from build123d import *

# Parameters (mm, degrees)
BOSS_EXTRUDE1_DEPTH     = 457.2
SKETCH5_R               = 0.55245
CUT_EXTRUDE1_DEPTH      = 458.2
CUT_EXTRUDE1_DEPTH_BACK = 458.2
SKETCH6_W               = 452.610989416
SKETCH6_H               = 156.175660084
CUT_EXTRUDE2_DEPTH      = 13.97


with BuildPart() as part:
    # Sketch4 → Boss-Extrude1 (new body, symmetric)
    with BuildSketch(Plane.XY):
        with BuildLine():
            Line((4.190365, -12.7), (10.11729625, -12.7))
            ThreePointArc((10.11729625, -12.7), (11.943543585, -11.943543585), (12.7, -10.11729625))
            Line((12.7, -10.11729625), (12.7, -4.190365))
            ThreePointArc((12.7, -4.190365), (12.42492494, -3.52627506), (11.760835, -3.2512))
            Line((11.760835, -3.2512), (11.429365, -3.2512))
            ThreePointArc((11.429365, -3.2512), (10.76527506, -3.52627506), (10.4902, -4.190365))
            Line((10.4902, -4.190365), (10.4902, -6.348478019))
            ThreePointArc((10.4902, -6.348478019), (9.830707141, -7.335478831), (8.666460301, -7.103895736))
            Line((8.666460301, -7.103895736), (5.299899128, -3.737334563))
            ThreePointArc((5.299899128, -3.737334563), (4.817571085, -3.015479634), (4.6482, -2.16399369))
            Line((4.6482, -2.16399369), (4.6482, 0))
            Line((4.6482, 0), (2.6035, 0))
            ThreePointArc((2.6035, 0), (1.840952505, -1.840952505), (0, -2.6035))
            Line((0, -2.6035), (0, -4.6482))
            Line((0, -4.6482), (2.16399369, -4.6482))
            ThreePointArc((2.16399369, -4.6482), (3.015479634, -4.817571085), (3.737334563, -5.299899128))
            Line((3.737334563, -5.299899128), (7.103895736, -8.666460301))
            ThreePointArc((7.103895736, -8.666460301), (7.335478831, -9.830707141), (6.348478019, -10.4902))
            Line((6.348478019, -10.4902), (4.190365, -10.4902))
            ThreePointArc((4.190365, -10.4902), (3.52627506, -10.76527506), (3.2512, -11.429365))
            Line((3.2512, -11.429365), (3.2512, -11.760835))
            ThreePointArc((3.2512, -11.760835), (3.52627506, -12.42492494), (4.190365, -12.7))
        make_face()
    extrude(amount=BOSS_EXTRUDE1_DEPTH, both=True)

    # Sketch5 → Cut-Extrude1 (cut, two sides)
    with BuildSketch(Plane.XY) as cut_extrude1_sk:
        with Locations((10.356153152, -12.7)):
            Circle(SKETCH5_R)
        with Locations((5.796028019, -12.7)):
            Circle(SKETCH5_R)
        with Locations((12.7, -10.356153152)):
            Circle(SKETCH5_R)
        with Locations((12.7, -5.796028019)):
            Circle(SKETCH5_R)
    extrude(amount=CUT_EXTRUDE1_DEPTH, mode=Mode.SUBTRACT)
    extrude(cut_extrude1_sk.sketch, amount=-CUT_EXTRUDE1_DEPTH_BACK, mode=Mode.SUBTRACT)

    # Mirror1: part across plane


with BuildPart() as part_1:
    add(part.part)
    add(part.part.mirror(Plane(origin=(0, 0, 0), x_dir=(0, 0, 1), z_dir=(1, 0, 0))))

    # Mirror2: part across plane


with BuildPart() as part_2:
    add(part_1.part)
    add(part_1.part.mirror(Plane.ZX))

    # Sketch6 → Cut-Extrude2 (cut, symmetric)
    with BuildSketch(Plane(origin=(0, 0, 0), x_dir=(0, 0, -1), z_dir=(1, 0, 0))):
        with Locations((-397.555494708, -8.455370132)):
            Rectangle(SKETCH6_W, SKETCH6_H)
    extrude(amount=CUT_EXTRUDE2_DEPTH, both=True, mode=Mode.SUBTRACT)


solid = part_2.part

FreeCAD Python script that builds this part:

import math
import FreeCAD as App
import Part
import Sketcher

V = App.Vector
Q = App.Units.Quantity

doc = App.newDocument("Part")
body = doc.addObject("PartDesign::Body", "Body")

# Sketch on XY plane
sketch1 = body.newObject("Sketcher::SketchObject", "Sketch")
sketch1.AttachmentSupport = (doc.getObject("XY_Plane"), [""])
sketch1.MapMode = "FlatFace"
sketch1.addGeometry(Part.LineSegment(V(4.190365, -12.7, 0), V(10.117296, -12.7, 0)), False)
sketch1.addGeometry(Part.ArcOfCircle(Part.Circle(V(10.117296, -10.117296, 0), V(0, 0, 1), 2.582704), math.radians(-90), math.radians(0)), False)
sketch1.addGeometry(Part.LineSegment(V(12.7, -10.117296, 0), V(12.7, -4.190365, 0)), False)
sketch1.addGeometry(Part.ArcOfCircle(Part.Circle(V(11.760835, -4.190365, 0), V(0, 0, 1), 0.939165), math.radians(0), math.radians(90)), False)
sketch1.addGeometry(Part.LineSegment(V(11.760835, -3.2512, 0), V(11.429365, -3.2512, 0)), False)
sketch1.addGeometry(Part.ArcOfCircle(Part.Circle(V(11.429365, -4.190365, 0), V(0, 0, 1), 0.939165), math.radians(90), math.radians(180)), False)
sketch1.addGeometry(Part.LineSegment(V(10.4902, -4.190365, 0), V(10.4902, -6.348478, 0)), False)
sketch1.addGeometry(Part.ArcOfCircle(Part.Circle(V(9.421878, -6.348478, 0), V(0, 0, 1), 1.068322), math.radians(-135), math.radians(0)), False)
sketch1.addGeometry(Part.LineSegment(V(8.66646, -7.103896, 0), V(5.299899, -3.737335, 0)), False)
sketch1.addGeometry(Part.ArcOfCircle(Part.Circle(V(6.87324, -2.163994, 0), V(0, 0, 1), 2.22504), math.radians(-180), math.radians(-135)), False)
sketch1.addGeometry(Part.LineSegment(V(4.6482, -2.163994, 0), V(4.6482, 0, 0)), False)
sketch1.addGeometry(Part.LineSegment(V(4.6482, 0, 0), V(2.6035, 0, 0)), False)
sketch1.addGeometry(Part.ArcOfCircle(Part.Circle(V(0, 0, 0), V(0, 0, 1), 2.6035), math.radians(-90), math.radians(0)), False)
sketch1.addGeometry(Part.LineSegment(V(0, -2.6035, 0), V(0, -4.6482, 0)), False)
sketch1.addGeometry(Part.LineSegment(V(0, -4.6482, 0), V(2.163994, -4.6482, 0)), False)
sketch1.addGeometry(Part.ArcOfCircle(Part.Circle(V(2.163994, -6.87324, 0), V(0, 0, 1), 2.22504), math.radians(45), math.radians(90)), False)
sketch1.addGeometry(Part.LineSegment(V(3.737335, -5.299899, 0), V(7.103896, -8.66646, 0)), False)
sketch1.addGeometry(Part.ArcOfCircle(Part.Circle(V(6.348478, -9.421878, 0), V(0, 0, 1), 1.068322), math.radians(-90), math.radians(45)), False)
sketch1.addGeometry(Part.LineSegment(V(6.348478, -10.4902, 0), V(4.190365, -10.4902, 0)), False)
sketch1.addGeometry(Part.ArcOfCircle(Part.Circle(V(4.190365, -11.429365, 0), V(0, 0, 1), 0.939165), math.radians(90), math.radians(180)), False)
sketch1.addGeometry(Part.LineSegment(V(3.2512, -11.429365, 0), V(3.2512, -11.760835, 0)), False)
sketch1.addGeometry(Part.ArcOfCircle(Part.Circle(V(4.190365, -11.760835, 0), V(0, 0, 1), 0.939165), math.radians(-180), math.radians(-90)), False)
sketch1.addConstraint(Sketcher.Constraint("Tangent", 0, 2, 1, 1))
sketch1.addConstraint(Sketcher.Constraint("Tangent", 1, 2, 2, 1))
sketch1.addConstraint(Sketcher.Constraint("Tangent", 2, 2, 3, 1))
sketch1.addConstraint(Sketcher.Constraint("Tangent", 3, 2, 4, 1))
sketch1.addConstraint(Sketcher.Constraint("Tangent", 4, 2, 5, 1))
sketch1.addConstraint(Sketcher.Constraint("Tangent", 5, 2, 6, 1))
sketch1.addConstraint(Sketcher.Constraint("Tangent", 6, 2, 7, 2))
sketch1.addConstraint(Sketcher.Constraint("Tangent", 7, 1, 8, 1))
sketch1.addConstraint(Sketcher.Constraint("Tangent", 8, 2, 9, 2))
sketch1.addConstraint(Sketcher.Constraint("Tangent", 9, 1, 10, 1))
sketch1.addConstraint(Sketcher.Constraint("Coincident", 10, 2, 11, 1))
sketch1.addConstraint(Sketcher.Constraint("Coincident", 11, 2, 12, 2))
sketch1.addConstraint(Sketcher.Constraint("Coincident", 12, 1, 13, 1))
sketch1.addConstraint(Sketcher.Constraint("Coincident", 13, 2, 14, 1))
sketch1.addConstraint(Sketcher.Constraint("Tangent", 14, 2, 15, 2))
sketch1.addConstraint(Sketcher.Constraint("Tangent", 15, 1, 16, 1))
sketch1.addConstraint(Sketcher.Constraint("Tangent", 16, 2, 17, 2))
sketch1.addConstraint(Sketcher.Constraint("Tangent", 17, 1, 18, 1))
sketch1.addConstraint(Sketcher.Constraint("Tangent", 18, 2, 19, 1))
sketch1.addConstraint(Sketcher.Constraint("Tangent", 19, 2, 20, 1))
sketch1.addConstraint(Sketcher.Constraint("Tangent", 20, 2, 21, 1))
sketch1.addConstraint(Sketcher.Constraint("Tangent", 21, 2, 0, 1))
sketch1.addConstraint(Sketcher.Constraint("Horizontal", 0))
sketch1.addConstraint(Sketcher.Constraint("Vertical", 2))
sketch1.addConstraint(Sketcher.Constraint("Horizontal", 4))
sketch1.addConstraint(Sketcher.Constraint("Vertical", 6))
sketch1.addConstraint(Sketcher.Constraint("Vertical", 10))
sketch1.addConstraint(Sketcher.Constraint("Horizontal", 11))
sketch1.addConstraint(Sketcher.Constraint("Vertical", 13))
sketch1.addConstraint(Sketcher.Constraint("Horizontal", 14))
sketch1.addConstraint(Sketcher.Constraint("Horizontal", 18))
sketch1.addConstraint(Sketcher.Constraint("Vertical", 20))
sketch1.addConstraint(Sketcher.Constraint("Coincident", 12, 3, -1, 1))
sketch1.addConstraint(Sketcher.Constraint("Equal", 3, 5))
sketch1.addConstraint(Sketcher.Constraint("Equal", 9, 15))
sketch1.addConstraint(Sketcher.Constraint("Equal", 7, 17))
sketch1.addConstraint(Sketcher.Constraint("Equal", 5, 19))
sketch1.addConstraint(Sketcher.Constraint("Equal", 19, 21))
sketch1.addConstraint(Sketcher.Constraint("PointOnObject", 10, 2, -1))
sketch1.addConstraint(Sketcher.Constraint("PointOnObject", 12, 1, -2))
sketch1.addConstraint(Sketcher.Constraint("Parallel", 8, 16))
sketch1.addConstraint(Sketcher.Constraint("Equal", 0, 2))
sketch1.addConstraint(Sketcher.Constraint("Equal", 18, 6))
sketch1.addConstraint(Sketcher.Constraint("Equal", 14, 10))
sketch1.addConstraint(Sketcher.Constraint("Equal", 11, 13))
sketch1.addConstraint(Sketcher.Constraint("Equal", 4, 20))
sketch1.addConstraint(Sketcher.Constraint("Equal", 8, 16))
sketch1.addConstraint(Sketcher.Constraint("DistanceY", 0, 2, -1, 1, Q("0.5 in")))
sketch1.addConstraint(Sketcher.Constraint("Radius", 9, Q("0.0876 in")))
sketch1.addConstraint(Sketcher.Constraint("Radius", 12, Q("0.1025 in")))
sketch1.addConstraint(Sketcher.Constraint("DistanceX", 9, 1, 5, 2, Q("0.23 in")))
sketch1.addConstraint(Sketcher.Constraint("DistanceX", 11, 2, 11, 1, Q("0.0805 in")))
sketch1.addConstraint(Sketcher.Constraint("DistanceY", 3, 2, -1, 1, Q("0.128 in")))
sketch1.addConstraint(Sketcher.Constraint("Radius", 7, Q("1.068322 mm")))
sketch1.addConstraint(Sketcher.Constraint("DistanceX", 17, 3, 7, 3, Q("0.121 in")))
sketch1.addConstraint(Sketcher.Constraint("Radius", 1, Q("2.582704 mm")))
sketch1.addConstraint(Sketcher.Constraint("Radius", 3, Q("0.939165 mm")))
pad1 = body.newObject("PartDesign::Pad", "Pad")
pad1.Profile = sketch1
pad1.Length = Q("36 in")
pad1.Midplane = True

# Sketch on XY plane
sketch2 = body.newObject("Sketcher::SketchObject", "Sketch001")
sketch2.AttachmentSupport = (doc.getObject("XY_Plane"), [""])
sketch2.MapMode = "FlatFace"
sketch2.addGeometry(Part.Circle(V(10.356153, -12.7, 0), V(0, 0, 1), 0.55245), False)
sketch2.addGeometry(Part.Circle(V(5.796028, -12.7, 0), V(0, 0, 1), 0.55245), False)
sketch2.addGeometry(Part.Circle(V(12.7, -10.356153, 0), V(0, 0, 1), 0.55245), False)
sketch2.addGeometry(Part.Circle(V(12.7, -5.796028, 0), V(0, 0, 1), 0.55245), False)
sketch2.addConstraint(Sketcher.Constraint("Equal", 0, 1))
sketch2.addConstraint(Sketcher.Constraint("Equal", 1, 2))
sketch2.addConstraint(Sketcher.Constraint("Equal", 2, 3))
sketch2.addConstraint(Sketcher.Constraint("Horizontal", 0, 3, 1, 3))
sketch2.addConstraint(Sketcher.Constraint("Vertical", 2, 3, 3, 3))
sketch2.addConstraint(Sketcher.Constraint("Diameter", 0, Q("0.0435 in")))
sketch2.addConstraint(Sketcher.Constraint("DistanceY", 0, 3, -1, 1, Q("0.5 in")))
sketch2.addConstraint(Sketcher.Constraint("DistanceX", -1, 1, 2, 3, Q("0.5 in")))
sketch2.addConstraint(Sketcher.Constraint("DistanceX", -1, 1, 1, 3, Q("5.796028 mm")))
sketch2.addConstraint(Sketcher.Constraint("DistanceY", 3, 3, -1, 1, Q("5.796028 mm")))
sketch2.addConstraint(Sketcher.Constraint("DistanceX", -1, 1, 0, 3, Q("10.356153 mm")))
sketch2.addConstraint(Sketcher.Constraint("DistanceY", 2, 3, -1, 1, Q("10.356153 mm")))
pocket1 = body.newObject("PartDesign::Pocket", "Pocket")
pocket1.Profile = sketch2
pocket1.Type = "ThroughAll"
pocket1.Midplane = True
body2 = doc.addObject("PartDesign::Body", "Body001")
doc.recompute()

body2.BaseFeature = body
doc.recompute()

mirroring = doc.addObject("Part::Mirroring", "Mirroring")
mirroring.Source = body
mirroring.Base = V(0, 0, 0)
mirroring.Normal = V(1, 0, 0)
body3 = doc.addObject("PartDesign::Body", "Body002")
body3.BaseFeature = mirroring
boolean = body2.newObject("PartDesign::Boolean", "Boolean")
boolean.Type = "Fuse"
boolean.addObjects([body3])
doc.recompute()
body4 = doc.addObject("PartDesign::Body", "Body003")
doc.recompute()

body4.BaseFeature = body2
doc.recompute()

mirroring2 = doc.addObject("Part::Mirroring", "Mirroring001")
mirroring2.Source = body2
mirroring2.Base = V(0, 0, 0)
mirroring2.Normal = V(0, 1, 0)
body5 = doc.addObject("PartDesign::Body", "Body004")
body5.BaseFeature = mirroring2
boolean2 = body4.newObject("PartDesign::Boolean", "Boolean001")
boolean2.Type = "Fuse"
boolean2.addObjects([body5])
doc.recompute()

# Sketch on YZ plane
sketch3 = body4.newObject("Sketcher::SketchObject", "Sketch002")
sketch3.AttachmentSupport = (doc.getObject("YZ_Plane003"), [""])
sketch3.MapMode = "FlatFace"
sketch3.addGeometry(Part.LineSegment(V(69.63246, 623.860989, 0), V(-86.5432, 623.860989, 0)), False)
sketch3.addGeometry(Part.LineSegment(V(-86.5432, 623.860989, 0), V(-86.5432, 171.25, 0)), False)
sketch3.addGeometry(Part.LineSegment(V(-86.5432, 171.25, 0), V(69.63246, 171.25, 0)), False)
sketch3.addGeometry(Part.LineSegment(V(69.63246, 171.25, 0), V(69.63246, 623.860989, 0)), False)
sketch3.addConstraint(Sketcher.Constraint("Coincident", 0, 2, 1, 1))
sketch3.addConstraint(Sketcher.Constraint("Coincident", 1, 2, 2, 1))
sketch3.addConstraint(Sketcher.Constraint("Coincident", 2, 2, 3, 1))
sketch3.addConstraint(Sketcher.Constraint("Coincident", 3, 2, 0, 1))
sketch3.addConstraint(Sketcher.Constraint("Horizontal", 0))
sketch3.addConstraint(Sketcher.Constraint("Vertical", 1))
sketch3.addConstraint(Sketcher.Constraint("Horizontal", 2))
sketch3.addConstraint(Sketcher.Constraint("Vertical", 3))
sketch3.addConstraint(Sketcher.Constraint("DistanceX", 0, 2, 0, 1, Q("156.17566 mm")))
sketch3.addConstraint(Sketcher.Constraint("DistanceY", 1, 2, 1, 1, Q("452.610989 mm")))
sketch3.addConstraint(Sketcher.Constraint("DistanceX", 0, 2, -1, 1, Q("86.5432 mm")))
sketch3.addConstraint(Sketcher.Constraint("DistanceY", -1, 1, 1, 2, Q("171.25 mm")))
pocket2 = body4.newObject("PartDesign::Pocket", "Pocket001")
pocket2.Profile = sketch3
pocket2.Length = Q("1.1 in")
pocket2.Midplane = True
mirroring.Visibility = False
mirroring2.Visibility = False

doc.recompute()
